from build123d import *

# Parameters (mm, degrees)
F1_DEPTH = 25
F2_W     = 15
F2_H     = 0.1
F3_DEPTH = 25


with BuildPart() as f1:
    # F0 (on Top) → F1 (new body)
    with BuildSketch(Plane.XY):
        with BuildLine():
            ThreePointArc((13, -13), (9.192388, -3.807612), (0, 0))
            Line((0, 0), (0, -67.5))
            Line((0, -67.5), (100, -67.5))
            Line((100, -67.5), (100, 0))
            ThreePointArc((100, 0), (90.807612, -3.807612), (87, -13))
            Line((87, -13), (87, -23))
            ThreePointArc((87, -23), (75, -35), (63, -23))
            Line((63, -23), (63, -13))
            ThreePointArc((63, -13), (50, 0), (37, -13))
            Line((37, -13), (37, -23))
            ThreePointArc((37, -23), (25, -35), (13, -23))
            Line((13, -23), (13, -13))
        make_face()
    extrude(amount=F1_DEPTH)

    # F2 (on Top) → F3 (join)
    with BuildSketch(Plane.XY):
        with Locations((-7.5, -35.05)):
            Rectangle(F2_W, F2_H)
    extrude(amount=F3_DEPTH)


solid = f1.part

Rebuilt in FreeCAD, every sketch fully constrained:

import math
import FreeCAD as App
import Part
import Sketcher

doc = App.newDocument("Part")
params = doc.addObject("Spreadsheet::Sheet", "Params")
for row, (alias, value) in enumerate([
    ("sketch1_radius", "13.000001 mm"),
    ("sketch1_radius2", "12 mm"),
    ("sketch1_height", "10 mm"),
    ("sketch1_height2", "67.5 mm"),
    ("pad1_length", "25 mm"),
    ("sketch2_width", "15 mm"),
    ("sketch2_height", "0.1 mm"),
    ("pad2_length", "25 mm"),
], start=1):
    params.set(f"A{row}", alias)
    params.set(f"B{row}", "=" + value)
    params.setAlias(f"B{row}", alias)

body = doc.addObject("PartDesign::Body", "Body")

sketch1 = body.newObject("Sketcher::SketchObject", "Sketch")
sketch1.AttachmentSupport = (doc.getObject("XY_Plane"), [""])
sketch1.MapMode = "FlatFace"
sketch1.addGeometry([
    Part.ArcOfCircle(Part.Circle(App.Vector(-0.000001, -13.000001, 0), App.Vector(0, 0, 1), 13.000001), math.radians(0.000002), math.radians(89.999998)),
    Part.LineSegment(App.Vector(0, 0, 0), App.Vector(0, -67.5, 0)),
    Part.LineSegment(App.Vector(0, -67.5, 0), App.Vector(100, -67.5, 0)),
    Part.LineSegment(App.Vector(100, -67.5, 0), App.Vector(100, 0, 0)),
    Part.ArcOfCircle(Part.Circle(App.Vector(100.000001, -13.000001, 0), App.Vector(0, 0, 1), 13.000001), math.radians(90.000002), math.radians(179.999998)),
    Part.LineSegment(App.Vector(87, -13, 0), App.Vector(87, -23, 0)),
    Part.ArcOfCircle(Part.Circle(App.Vector(75, -23, 0), App.Vector(0, 0, 1), 12), math.radians(180), math.radians(360)),
    Part.LineSegment(App.Vector(63, -23, 0), App.Vector(63, -13, 0)),
    Part.ArcOfCircle(Part.Circle(App.Vector(50, -13, 0), App.Vector(0, 0, 1), 13), math.radians(0), math.radians(180)),
    Part.LineSegment(App.Vector(37, -13, 0), App.Vector(37, -23, 0)),
    Part.ArcOfCircle(Part.Circle(App.Vector(25, -23, 0), App.Vector(0, 0, 1), 12), math.radians(180), math.radians(360)),
    Part.LineSegment(App.Vector(13, -23, 0), App.Vector(13, -13, 0)),
], False)
sketch1.addConstraint([
    Sketcher.Constraint("Coincident", 0, 2, 1, 1),
    Sketcher.Constraint("Coincident", 1, 2, 2, 1),
    Sketcher.Constraint("Coincident", 2, 2, 3, 1),
    Sketcher.Constraint("Coincident", 3, 2, 4, 1),
    Sketcher.Constraint("Tangent", 4, 2, 5, 1),
    Sketcher.Constraint("Tangent", 5, 2, 6, 2),
    Sketcher.Constraint("Tangent", 6, 1, 7, 1),
    Sketcher.Constraint("Tangent", 7, 2, 8, 1),
    Sketcher.Constraint("Tangent", 8, 2, 9, 1),
    Sketcher.Constraint("Tangent", 9, 2, 10, 2),
    Sketcher.Constraint("Tangent", 10, 1, 11, 1),
    Sketcher.Constraint("Tangent", 11, 2, 0, 1),
    Sketcher.Constraint("Vertical", 1),
    Sketcher.Constraint("Horizontal", 2),
    Sketcher.Constraint("Vertical", 3),
    Sketcher.Constraint("Vertical", 5),
    Sketcher.Constraint("Vertical", 7),
    Sketcher.Constraint("Vertical", 9),
    Sketcher.Constraint("Vertical", 11),
    Sketcher.Constraint("Coincident", 0, 2, -1, 1),
    Sketcher.Constraint("Equal", 0, 4),
    Sketcher.Constraint("Equal", 4, 8),
    Sketcher.Constraint("Equal", 6, 10),
    Sketcher.Constraint("PointOnObject", 0, 3, -2),
    Sketcher.Constraint("PointOnObject", 3, 2, -1),
    Sketcher.Constraint("Horizontal", 4, 3, 8, 3),
    Sketcher.Constraint("Horizontal", 6, 3, 10, 3),
    Sketcher.Constraint("Vertical", 4, 3, 2, 2),
    Sketcher.Constraint("Radius", 0, 13.000001),
    Sketcher.Constraint("Radius", 6, 12.0),
    Sketcher.Constraint("DistanceY", 5, 2, 5, 1, 10.0),
    Sketcher.Constraint("DistanceY", 1, 2, 1, 1, 67.5),
])
sketch1.setExpression("Constraints[28]", "Params.sketch1_radius")
sketch1.setExpression("Constraints[29]", "Params.sketch1_radius2")
sketch1.setExpression("Constraints[30]", "Params.sketch1_height")
sketch1.setExpression("Constraints[31]", "Params.sketch1_height2")
pad1 = body.newObject("PartDesign::Pad", "Pad")
pad1.Profile = sketch1
pad1.setExpression("Length", "Params.pad1_length")

sketch2 = body.newObject("Sketcher::SketchObject", "Sketch001")
sketch2.AttachmentSupport = (doc.getObject("XY_Plane"), [""])
sketch2.MapMode = "FlatFace"
sketch2.addGeometry([
    Part.LineSegment(App.Vector(-15, -35, 0), App.Vector(-15, -35.1, 0)),
    Part.LineSegment(App.Vector(-15, -35.1, 0), App.Vector(0, -35.1, 0)),
    Part.LineSegment(App.Vector(0, -35.1, 0), App.Vector(0, -35, 0)),
    Part.LineSegment(App.Vector(0, -35, 0), App.Vector(-15, -35, 0)),
], False)
sketch2.addConstraint([
    Sketcher.Constraint("Coincident", 0, 2, 1, 1),
    Sketcher.Constraint("Coincident", 1, 2, 2, 1),
    Sketcher.Constraint("Coincident", 2, 2, 3, 1),
    Sketcher.Constraint("Coincident", 3, 2, 0, 1),
    Sketcher.Constraint("Vertical", 0),
    Sketcher.Constraint("Horizontal", 1),
    Sketcher.Constraint("Vertical", 2),
    Sketcher.Constraint("Horizontal", 3),
    Sketcher.Constraint("PointOnObject", 1, 2, -2),
    Sketcher.Constraint("DistanceX", 1, 1, 1, 2, 15.0),
    Sketcher.Constraint("DistanceY", 0, 2, 0, 1, 0.1),
    Sketcher.Constraint("DistanceY", 2, 2, -1, 1, 35.0),
])
sketch2.setExpression("Constraints[9]", "Params.sketch2_width")
sketch2.setExpression("Constraints[10]", "Params.sketch2_height")
pad2 = body.newObject("PartDesign::Pad", "Pad001")
pad2.Profile = sketch2
pad2.setExpression("Length", "Params.pad2_length")

doc.recompute()
